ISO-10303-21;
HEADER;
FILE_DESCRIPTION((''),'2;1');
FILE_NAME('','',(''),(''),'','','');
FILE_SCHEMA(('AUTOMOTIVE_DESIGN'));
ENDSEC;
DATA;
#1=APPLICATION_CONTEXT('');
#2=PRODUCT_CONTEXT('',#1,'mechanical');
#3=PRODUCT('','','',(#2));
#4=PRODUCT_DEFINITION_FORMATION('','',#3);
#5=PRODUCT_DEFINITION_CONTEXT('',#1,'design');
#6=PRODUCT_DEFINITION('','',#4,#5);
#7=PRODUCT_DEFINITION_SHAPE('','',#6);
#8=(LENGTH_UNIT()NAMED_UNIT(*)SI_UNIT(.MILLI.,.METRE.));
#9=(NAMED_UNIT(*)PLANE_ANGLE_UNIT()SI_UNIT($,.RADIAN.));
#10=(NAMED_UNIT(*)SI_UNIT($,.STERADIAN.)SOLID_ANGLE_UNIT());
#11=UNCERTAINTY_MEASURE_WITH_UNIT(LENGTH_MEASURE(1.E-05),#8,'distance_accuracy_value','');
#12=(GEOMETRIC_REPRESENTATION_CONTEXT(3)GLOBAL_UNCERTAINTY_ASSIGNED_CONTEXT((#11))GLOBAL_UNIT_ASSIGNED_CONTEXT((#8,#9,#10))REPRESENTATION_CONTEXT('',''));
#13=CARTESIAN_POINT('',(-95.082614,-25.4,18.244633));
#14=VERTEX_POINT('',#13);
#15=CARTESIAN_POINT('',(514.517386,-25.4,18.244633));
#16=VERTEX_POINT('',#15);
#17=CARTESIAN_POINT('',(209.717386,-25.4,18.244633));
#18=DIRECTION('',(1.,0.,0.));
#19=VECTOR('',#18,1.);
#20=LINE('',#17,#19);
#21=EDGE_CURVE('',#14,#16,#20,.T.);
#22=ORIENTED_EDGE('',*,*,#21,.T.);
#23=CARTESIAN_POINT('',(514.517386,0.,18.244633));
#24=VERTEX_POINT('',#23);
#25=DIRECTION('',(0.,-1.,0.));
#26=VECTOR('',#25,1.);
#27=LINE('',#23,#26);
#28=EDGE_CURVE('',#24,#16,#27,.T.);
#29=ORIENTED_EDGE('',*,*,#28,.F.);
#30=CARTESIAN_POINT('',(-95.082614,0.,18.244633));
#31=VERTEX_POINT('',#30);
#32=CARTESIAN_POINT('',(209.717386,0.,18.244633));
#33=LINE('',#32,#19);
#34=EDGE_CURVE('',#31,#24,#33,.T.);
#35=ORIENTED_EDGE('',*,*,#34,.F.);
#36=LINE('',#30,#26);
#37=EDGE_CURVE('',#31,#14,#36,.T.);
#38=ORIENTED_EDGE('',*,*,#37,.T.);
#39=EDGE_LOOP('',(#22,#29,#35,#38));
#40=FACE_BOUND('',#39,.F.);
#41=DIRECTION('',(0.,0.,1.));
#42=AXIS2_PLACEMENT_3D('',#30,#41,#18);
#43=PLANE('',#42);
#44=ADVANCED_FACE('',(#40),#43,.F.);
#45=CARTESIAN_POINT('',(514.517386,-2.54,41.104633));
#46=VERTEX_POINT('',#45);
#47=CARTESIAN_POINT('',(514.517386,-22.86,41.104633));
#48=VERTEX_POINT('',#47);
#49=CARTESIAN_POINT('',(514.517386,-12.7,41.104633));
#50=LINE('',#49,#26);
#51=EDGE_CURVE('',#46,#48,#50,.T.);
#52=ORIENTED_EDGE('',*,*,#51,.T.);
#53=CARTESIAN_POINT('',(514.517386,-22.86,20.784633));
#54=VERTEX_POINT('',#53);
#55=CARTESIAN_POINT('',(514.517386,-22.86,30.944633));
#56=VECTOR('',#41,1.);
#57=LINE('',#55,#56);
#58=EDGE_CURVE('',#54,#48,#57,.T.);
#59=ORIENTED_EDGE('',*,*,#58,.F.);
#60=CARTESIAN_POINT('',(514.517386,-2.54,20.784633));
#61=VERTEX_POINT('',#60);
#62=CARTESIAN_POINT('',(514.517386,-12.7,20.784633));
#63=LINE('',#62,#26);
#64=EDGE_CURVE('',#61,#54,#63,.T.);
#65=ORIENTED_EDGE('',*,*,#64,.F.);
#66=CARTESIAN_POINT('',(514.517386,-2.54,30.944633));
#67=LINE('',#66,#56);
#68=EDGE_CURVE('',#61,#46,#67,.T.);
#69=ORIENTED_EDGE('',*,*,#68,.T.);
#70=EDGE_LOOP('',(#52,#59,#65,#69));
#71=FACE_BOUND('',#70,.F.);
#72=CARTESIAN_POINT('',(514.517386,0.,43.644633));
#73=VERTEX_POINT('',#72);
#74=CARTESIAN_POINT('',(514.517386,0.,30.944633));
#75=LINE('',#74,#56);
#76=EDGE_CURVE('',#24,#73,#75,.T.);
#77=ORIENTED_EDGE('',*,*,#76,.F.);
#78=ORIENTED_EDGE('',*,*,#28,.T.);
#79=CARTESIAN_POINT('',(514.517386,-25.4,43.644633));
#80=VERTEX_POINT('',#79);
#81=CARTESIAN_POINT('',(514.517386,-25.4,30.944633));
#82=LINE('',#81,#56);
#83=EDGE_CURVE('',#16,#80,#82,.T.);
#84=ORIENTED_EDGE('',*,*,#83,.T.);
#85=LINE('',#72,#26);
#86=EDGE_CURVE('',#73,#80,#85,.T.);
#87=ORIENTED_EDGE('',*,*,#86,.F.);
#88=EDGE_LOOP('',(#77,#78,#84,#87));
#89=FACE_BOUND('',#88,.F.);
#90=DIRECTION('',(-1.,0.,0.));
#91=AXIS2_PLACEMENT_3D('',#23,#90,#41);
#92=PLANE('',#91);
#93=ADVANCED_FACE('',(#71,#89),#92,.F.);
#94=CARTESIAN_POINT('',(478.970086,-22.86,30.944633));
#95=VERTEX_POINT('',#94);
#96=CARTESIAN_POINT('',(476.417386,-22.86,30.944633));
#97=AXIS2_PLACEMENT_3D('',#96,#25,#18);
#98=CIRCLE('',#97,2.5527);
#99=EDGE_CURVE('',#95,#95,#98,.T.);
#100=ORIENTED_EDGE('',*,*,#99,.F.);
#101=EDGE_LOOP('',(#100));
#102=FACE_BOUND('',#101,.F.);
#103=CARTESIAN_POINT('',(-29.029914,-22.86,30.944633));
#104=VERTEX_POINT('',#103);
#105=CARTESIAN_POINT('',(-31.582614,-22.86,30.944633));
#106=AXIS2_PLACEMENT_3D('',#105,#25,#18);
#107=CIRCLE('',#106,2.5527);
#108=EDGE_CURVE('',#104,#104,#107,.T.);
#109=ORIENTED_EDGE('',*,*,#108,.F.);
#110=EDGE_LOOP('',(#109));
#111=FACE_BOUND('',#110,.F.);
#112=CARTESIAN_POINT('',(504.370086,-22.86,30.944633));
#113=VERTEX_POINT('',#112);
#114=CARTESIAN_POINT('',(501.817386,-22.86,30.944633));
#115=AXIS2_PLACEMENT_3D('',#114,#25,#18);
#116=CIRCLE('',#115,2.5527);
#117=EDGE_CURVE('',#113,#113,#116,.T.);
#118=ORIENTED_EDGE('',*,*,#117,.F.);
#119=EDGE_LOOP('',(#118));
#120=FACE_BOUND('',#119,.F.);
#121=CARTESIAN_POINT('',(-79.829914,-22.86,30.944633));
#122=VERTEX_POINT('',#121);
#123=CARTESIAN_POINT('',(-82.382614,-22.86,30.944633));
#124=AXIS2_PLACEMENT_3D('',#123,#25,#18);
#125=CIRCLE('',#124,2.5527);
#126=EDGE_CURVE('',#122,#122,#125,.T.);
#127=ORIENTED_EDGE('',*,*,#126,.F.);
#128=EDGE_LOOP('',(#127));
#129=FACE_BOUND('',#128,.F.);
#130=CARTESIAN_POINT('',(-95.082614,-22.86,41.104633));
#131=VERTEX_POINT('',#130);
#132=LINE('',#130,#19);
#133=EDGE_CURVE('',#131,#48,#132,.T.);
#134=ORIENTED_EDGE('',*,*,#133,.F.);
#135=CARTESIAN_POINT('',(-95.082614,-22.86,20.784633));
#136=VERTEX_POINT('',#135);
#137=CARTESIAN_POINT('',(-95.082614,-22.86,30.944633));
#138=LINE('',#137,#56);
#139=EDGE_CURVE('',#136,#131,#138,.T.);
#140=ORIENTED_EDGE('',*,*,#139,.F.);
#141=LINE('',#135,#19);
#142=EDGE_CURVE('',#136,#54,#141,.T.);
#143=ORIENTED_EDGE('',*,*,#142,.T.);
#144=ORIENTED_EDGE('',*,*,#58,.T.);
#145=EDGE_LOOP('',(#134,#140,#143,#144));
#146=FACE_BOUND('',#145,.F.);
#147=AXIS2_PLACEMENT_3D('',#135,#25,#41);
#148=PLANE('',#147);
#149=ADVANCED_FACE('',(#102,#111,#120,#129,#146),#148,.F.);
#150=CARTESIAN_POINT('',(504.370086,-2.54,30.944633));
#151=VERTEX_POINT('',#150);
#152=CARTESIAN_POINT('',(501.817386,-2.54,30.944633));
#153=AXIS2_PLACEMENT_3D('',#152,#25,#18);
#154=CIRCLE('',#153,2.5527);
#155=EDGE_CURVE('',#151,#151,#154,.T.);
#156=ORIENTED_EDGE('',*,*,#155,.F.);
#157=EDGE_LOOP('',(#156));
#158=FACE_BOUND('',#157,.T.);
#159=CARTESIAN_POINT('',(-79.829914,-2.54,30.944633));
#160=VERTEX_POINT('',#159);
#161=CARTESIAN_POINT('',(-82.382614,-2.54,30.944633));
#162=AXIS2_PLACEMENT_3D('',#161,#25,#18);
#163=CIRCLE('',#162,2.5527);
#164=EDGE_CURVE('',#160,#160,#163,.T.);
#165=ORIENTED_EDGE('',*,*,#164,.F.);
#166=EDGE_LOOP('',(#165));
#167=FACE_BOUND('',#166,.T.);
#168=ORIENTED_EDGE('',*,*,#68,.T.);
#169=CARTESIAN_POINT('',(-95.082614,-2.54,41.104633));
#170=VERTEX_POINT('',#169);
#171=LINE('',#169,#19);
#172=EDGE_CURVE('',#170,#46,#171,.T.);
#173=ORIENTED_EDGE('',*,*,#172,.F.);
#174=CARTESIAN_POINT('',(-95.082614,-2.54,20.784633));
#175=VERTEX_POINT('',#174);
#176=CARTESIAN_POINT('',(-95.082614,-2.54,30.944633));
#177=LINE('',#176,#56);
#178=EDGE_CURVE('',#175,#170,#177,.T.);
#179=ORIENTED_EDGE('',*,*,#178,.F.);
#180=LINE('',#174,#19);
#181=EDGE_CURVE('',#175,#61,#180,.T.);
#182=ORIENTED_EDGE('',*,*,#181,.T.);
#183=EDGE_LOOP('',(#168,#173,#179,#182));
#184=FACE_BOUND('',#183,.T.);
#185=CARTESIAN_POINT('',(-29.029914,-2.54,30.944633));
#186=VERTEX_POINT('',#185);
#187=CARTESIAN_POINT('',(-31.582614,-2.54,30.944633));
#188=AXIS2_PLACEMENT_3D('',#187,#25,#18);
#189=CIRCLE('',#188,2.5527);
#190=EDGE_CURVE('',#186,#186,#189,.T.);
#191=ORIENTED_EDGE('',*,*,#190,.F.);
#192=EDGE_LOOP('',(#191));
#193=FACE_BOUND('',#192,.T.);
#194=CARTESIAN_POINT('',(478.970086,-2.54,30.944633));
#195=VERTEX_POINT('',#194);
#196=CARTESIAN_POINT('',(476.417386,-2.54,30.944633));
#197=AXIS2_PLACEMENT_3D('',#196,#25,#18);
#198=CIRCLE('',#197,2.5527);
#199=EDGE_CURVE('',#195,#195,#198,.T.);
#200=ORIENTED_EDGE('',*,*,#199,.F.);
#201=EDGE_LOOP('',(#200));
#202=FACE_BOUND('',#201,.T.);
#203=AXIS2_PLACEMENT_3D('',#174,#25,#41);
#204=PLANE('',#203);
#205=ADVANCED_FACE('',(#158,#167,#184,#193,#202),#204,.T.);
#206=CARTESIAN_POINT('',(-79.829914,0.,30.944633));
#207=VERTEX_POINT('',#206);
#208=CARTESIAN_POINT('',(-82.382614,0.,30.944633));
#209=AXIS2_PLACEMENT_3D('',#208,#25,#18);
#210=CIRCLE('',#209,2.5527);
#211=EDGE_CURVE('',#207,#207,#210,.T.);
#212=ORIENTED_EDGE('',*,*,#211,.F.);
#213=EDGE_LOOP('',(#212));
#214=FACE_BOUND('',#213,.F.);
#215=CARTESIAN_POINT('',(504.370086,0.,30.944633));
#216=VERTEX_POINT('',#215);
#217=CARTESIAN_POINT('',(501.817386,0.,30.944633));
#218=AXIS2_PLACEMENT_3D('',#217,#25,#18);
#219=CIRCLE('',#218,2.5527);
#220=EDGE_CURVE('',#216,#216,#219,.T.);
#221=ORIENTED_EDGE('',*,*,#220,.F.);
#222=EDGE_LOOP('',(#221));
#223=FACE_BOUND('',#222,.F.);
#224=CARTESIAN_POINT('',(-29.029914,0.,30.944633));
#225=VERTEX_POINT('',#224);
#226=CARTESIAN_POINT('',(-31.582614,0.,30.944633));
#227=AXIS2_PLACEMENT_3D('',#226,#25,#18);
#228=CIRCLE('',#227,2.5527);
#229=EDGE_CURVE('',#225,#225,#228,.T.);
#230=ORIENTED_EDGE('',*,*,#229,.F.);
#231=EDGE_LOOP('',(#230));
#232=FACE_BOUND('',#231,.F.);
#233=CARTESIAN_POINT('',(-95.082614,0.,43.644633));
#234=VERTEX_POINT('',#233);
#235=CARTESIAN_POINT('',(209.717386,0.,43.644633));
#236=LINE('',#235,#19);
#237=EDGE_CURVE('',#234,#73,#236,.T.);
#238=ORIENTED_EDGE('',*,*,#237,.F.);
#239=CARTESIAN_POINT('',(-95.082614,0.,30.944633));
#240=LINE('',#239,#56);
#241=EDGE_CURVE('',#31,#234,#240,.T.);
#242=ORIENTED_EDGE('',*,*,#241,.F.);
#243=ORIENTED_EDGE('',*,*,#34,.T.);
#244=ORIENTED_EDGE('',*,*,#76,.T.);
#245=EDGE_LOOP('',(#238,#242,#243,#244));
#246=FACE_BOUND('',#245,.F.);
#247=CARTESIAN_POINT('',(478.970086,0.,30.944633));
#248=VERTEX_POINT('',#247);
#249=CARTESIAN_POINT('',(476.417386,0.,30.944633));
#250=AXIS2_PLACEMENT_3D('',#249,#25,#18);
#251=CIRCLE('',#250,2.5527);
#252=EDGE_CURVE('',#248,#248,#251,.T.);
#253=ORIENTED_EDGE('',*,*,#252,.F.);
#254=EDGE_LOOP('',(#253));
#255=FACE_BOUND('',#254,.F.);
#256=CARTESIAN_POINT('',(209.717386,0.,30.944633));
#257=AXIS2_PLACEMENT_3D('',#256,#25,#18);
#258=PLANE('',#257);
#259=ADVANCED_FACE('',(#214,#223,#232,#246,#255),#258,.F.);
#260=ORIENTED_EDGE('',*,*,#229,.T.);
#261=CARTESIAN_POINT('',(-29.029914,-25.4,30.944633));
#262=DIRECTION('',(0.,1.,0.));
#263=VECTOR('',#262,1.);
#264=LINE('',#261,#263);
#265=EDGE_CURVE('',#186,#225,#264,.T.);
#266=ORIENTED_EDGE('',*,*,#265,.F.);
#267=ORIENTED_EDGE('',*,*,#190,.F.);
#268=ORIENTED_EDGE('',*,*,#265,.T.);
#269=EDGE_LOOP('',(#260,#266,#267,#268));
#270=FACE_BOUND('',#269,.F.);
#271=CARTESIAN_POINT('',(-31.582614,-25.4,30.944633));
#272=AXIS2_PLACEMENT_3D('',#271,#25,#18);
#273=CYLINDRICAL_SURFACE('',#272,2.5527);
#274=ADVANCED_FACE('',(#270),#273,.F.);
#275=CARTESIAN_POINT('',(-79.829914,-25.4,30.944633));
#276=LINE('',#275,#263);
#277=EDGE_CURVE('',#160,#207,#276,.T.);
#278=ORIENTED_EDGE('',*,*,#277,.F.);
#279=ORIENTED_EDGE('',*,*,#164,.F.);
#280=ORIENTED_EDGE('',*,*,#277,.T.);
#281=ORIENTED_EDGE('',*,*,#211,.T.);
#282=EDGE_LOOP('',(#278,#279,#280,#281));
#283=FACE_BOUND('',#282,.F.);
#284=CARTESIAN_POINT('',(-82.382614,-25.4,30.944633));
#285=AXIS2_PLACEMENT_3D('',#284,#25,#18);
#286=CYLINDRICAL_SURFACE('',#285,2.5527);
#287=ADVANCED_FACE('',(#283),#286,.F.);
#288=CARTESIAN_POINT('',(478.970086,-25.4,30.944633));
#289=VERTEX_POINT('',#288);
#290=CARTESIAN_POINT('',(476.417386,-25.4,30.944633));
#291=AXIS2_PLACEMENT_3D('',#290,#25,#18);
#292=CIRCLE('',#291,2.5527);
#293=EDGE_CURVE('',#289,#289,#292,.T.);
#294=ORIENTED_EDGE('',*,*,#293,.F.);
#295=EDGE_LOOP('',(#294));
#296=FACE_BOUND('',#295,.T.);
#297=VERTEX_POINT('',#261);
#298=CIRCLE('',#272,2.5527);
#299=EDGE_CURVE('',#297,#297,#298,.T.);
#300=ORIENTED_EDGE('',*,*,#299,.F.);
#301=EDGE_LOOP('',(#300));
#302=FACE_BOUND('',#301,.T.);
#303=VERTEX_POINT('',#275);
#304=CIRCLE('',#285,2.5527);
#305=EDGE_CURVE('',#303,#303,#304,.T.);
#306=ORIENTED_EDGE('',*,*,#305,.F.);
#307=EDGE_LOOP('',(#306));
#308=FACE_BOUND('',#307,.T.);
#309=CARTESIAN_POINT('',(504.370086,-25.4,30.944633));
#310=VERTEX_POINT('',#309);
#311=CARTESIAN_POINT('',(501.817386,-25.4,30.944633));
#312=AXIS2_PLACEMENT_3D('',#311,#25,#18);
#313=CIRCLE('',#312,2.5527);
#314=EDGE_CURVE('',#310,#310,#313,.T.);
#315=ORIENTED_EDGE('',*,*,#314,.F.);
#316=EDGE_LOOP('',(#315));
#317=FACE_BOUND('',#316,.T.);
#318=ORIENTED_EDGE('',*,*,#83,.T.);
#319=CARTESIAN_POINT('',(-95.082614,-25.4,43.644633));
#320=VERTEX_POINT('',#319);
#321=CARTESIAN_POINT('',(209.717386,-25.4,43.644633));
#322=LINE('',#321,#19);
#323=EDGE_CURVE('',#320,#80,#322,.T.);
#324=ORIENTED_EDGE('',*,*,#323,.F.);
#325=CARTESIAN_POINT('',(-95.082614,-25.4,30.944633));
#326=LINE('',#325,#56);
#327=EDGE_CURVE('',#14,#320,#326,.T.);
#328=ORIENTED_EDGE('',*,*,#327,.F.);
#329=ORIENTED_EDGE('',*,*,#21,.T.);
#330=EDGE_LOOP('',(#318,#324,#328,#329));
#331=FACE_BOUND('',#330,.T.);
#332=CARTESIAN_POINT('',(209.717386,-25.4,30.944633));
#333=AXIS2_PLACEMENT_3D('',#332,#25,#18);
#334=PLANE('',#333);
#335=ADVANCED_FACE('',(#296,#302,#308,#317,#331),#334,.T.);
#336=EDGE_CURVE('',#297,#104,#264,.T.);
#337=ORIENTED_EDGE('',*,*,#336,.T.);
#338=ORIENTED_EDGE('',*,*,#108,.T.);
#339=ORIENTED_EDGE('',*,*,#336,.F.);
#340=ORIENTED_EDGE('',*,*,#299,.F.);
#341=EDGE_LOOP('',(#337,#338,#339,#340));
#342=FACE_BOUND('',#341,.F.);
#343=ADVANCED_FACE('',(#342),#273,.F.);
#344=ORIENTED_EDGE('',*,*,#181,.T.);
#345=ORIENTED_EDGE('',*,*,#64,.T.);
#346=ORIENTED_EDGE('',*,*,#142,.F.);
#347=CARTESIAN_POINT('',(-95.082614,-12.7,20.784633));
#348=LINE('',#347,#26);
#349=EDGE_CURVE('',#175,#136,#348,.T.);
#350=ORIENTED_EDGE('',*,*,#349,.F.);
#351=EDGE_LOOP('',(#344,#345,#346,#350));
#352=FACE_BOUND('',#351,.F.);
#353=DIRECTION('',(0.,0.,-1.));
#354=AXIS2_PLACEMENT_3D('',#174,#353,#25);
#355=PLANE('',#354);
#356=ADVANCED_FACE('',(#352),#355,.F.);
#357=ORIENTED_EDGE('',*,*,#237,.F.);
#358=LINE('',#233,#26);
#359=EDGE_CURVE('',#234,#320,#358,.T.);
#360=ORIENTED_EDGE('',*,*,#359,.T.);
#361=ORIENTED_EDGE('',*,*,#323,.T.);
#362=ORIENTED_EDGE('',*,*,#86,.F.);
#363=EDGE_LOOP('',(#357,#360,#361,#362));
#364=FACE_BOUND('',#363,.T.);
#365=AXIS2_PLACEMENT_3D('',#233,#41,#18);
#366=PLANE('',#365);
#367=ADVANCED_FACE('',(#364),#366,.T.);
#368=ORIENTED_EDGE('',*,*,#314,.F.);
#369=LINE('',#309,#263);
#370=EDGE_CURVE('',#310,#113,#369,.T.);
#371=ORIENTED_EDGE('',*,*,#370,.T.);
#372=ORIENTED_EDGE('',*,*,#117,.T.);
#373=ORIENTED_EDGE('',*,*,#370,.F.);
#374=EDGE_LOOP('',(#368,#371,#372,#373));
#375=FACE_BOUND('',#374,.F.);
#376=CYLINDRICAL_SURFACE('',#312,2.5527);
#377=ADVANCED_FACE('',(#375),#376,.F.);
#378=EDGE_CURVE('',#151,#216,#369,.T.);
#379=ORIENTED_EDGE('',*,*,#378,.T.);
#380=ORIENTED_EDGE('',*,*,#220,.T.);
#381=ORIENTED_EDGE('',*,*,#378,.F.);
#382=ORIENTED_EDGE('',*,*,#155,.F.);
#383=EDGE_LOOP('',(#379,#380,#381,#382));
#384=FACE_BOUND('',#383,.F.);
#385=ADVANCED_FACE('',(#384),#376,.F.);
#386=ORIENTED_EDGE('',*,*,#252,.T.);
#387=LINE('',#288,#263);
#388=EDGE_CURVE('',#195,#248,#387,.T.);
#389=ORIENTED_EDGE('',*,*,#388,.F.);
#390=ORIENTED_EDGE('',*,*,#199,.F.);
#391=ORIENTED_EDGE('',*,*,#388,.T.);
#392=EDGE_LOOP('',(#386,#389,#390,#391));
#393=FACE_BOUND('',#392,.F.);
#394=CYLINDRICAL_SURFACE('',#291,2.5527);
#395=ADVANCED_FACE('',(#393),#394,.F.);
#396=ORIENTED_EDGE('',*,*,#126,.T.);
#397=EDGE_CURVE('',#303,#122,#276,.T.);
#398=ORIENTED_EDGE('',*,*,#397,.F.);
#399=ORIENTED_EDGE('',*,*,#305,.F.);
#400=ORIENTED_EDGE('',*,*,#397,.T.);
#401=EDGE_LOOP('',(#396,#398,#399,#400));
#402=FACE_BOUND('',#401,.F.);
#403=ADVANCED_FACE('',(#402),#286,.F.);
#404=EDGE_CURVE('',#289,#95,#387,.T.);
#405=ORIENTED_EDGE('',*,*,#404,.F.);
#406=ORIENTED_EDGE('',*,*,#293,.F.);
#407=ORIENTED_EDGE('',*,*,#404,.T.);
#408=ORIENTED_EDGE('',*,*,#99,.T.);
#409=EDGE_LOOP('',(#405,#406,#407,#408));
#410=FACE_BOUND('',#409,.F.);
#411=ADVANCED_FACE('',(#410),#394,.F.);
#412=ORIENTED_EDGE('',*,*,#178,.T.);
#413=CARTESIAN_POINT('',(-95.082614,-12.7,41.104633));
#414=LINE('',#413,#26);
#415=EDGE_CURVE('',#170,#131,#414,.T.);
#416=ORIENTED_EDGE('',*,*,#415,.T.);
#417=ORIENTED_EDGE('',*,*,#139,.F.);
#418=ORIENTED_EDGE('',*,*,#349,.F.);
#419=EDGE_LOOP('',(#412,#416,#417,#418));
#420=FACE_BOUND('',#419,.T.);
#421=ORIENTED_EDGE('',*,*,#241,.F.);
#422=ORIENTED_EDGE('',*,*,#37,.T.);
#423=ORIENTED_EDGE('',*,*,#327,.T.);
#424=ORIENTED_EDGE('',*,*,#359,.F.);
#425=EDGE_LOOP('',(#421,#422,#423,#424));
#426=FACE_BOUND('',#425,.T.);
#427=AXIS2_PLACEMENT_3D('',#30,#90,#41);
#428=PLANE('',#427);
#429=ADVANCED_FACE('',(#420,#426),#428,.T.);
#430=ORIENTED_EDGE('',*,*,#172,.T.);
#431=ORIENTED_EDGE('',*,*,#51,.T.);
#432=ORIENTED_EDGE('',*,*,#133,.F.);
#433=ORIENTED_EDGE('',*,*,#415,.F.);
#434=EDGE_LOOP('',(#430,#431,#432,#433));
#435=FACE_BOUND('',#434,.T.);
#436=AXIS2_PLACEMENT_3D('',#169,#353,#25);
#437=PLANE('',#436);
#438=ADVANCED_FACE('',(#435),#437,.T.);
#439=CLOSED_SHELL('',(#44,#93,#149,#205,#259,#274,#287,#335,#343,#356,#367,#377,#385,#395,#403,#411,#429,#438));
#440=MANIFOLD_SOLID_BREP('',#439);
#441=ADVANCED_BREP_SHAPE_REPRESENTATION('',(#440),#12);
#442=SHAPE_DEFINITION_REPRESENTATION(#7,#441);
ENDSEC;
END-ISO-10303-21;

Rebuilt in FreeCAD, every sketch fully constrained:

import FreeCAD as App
import Part
import Sketcher
from FreeCAD import Vector
Q = App.Units.Quantity


def add_polygon(sketch, points):
    """Adds a closed chain of lines whose ends are joined by coincident constraints."""
    first, n = sketch.GeometryCount, len(points)
    for a, b in zip(points, points[1:] + points[:1]):
        sketch.addGeometry(Part.LineSegment(App.Vector(*a, 0), App.Vector(*b, 0)), False)
    for i in range(n):
        sketch.addConstraint(Sketcher.Constraint("Coincident", first + i, 2, first + (i + 1) % n, 1))

doc = App.newDocument("Part")
body = doc.addObject("PartDesign::Body", "Body")

# Sketch on XZ plane
sketch1 = body.newObject("Sketcher::SketchObject", "Sketch")
sketch1.AttachmentSupport = (doc.getObject("XZ_Plane"), [""])
sketch1.MapMode = "FlatFace"
add_polygon(sketch1, [(-95, 44), (-95, 18), (515, 18), (515, 44)])  # lines 0-3
sketch1.addConstraint([
    Sketcher.Constraint("Vertical", 0),
    Sketcher.Constraint("Horizontal", 1),
    Sketcher.Constraint("Vertical", 2),
    Sketcher.Constraint("Horizontal", 3),
    Sketcher.Constraint("DistanceX", 1, 1, 1, 2, Q("24 in")),
    Sketcher.Constraint("DistanceY", 0, 2, 0, 1, Q("1 in")),
    Sketcher.Constraint("DistanceX", 0, 2, -1, 1, Q("95.082614 mm")),
    Sketcher.Constraint("DistanceY", -1, 1, 0, 2, Q("18.244633 mm")),
])
pad1 = body.newObject("PartDesign::Pad", "Pad")
pad1.Profile = sketch1
pad1.Length = Q("1 in")

# Sketch on YZ plane
sketch2 = body.newObject("Sketcher::SketchObject", "Sketch001")
sketch2.AttachmentSupport = (doc.getObject("YZ_Plane"), [""])
sketch2.MapMode = "FlatFace"
sketch2.AttachmentOffset = App.Placement(Vector(0, 0, -95.082614), App.Rotation())
add_polygon(sketch2, [(-3, 41), (-3, 21), (-23, 21), (-23, 41)])  # lines 0-3
sketch2.addConstraint([
    Sketcher.Constraint("Vertical", 0),
    Sketcher.Constraint("Horizontal", 1),
    Sketcher.Constraint("Vertical", 2),
    Sketcher.Constraint("Horizontal", 3),
    Sketcher.Constraint("Equal", 3, 0),
    Sketcher.Constraint("DistanceX", 1, 2, 1, 1, Q("0.8 in")),
    Sketcher.Constraint("DistanceX", 0, 2, -1, 1, Q("0.1 in")),
    Sketcher.Constraint("DistanceY", -1, 1, 0, 2, Q("20.784633 mm")),
])
pocket1 = body.newObject("PartDesign::Pocket", "Pocket")
pocket1.Profile = sketch2
pocket1.Length = Q("24 in")
pocket1.Reversed = True

# Sketch on XZ plane
sketch3 = body.newObject("Sketcher::SketchObject", "Sketch002")
sketch3.AttachmentSupport = (doc.getObject("XZ_Plane"), [""])
sketch3.MapMode = "FlatFace"
sketch3.AttachmentOffset = App.Placement(Vector(0, 0, 1 * 25.4), App.Rotation())
sketch3.addGeometry([
    Part.Circle(Vector(501.8, 30.9, 0), Vector(0, 0, 1), 2.6),
    Part.Circle(Vector(476.4, 30.9, 0), Vector(0, 0, 1), 2.6),
    Part.Circle(Vector(-82.4, 30.9, 0), Vector(0, 0, 1), 2.6),
    Part.Circle(Vector(-31.6, 30.9, 0), Vector(0, 0, 1), 2.6),
], False)
sketch3.addConstraint([
    Sketcher.Constraint("Equal", 0, 1),
    Sketcher.Constraint("Equal", 1, 2),
    Sketcher.Constraint("Equal", 2, 3),
    Sketcher.Constraint("Horizontal", 0, 3, 1, 3),
    Sketcher.Constraint("Horizontal", 1, 3, 2, 3),
    Sketcher.Constraint("Horizontal", 2, 3, 3, 3),
    Sketcher.Constraint("Diameter", 0, Q("0.201 in")),
    Sketcher.Constraint("DistanceX", 1, 3, 0, 3, Q("1 in")),
    Sketcher.Constraint("DistanceX", 2, 3, 1, 3, Q("22 in")),
    Sketcher.Constraint("DistanceX", 2, 3, 3, 3, Q("2 in")),
    Sketcher.Constraint("DistanceX", -1, 1, 0, 3, Q("501.817386 mm")),
    Sketcher.Constraint("DistanceY", -1, 1, 0, 3, Q("30.944633 mm")),
])
pocket2 = body.newObject("PartDesign::Pocket", "Pocket001")
pocket2.Profile = sketch3
pocket2.Length = Q("1 in")

doc.recompute()
